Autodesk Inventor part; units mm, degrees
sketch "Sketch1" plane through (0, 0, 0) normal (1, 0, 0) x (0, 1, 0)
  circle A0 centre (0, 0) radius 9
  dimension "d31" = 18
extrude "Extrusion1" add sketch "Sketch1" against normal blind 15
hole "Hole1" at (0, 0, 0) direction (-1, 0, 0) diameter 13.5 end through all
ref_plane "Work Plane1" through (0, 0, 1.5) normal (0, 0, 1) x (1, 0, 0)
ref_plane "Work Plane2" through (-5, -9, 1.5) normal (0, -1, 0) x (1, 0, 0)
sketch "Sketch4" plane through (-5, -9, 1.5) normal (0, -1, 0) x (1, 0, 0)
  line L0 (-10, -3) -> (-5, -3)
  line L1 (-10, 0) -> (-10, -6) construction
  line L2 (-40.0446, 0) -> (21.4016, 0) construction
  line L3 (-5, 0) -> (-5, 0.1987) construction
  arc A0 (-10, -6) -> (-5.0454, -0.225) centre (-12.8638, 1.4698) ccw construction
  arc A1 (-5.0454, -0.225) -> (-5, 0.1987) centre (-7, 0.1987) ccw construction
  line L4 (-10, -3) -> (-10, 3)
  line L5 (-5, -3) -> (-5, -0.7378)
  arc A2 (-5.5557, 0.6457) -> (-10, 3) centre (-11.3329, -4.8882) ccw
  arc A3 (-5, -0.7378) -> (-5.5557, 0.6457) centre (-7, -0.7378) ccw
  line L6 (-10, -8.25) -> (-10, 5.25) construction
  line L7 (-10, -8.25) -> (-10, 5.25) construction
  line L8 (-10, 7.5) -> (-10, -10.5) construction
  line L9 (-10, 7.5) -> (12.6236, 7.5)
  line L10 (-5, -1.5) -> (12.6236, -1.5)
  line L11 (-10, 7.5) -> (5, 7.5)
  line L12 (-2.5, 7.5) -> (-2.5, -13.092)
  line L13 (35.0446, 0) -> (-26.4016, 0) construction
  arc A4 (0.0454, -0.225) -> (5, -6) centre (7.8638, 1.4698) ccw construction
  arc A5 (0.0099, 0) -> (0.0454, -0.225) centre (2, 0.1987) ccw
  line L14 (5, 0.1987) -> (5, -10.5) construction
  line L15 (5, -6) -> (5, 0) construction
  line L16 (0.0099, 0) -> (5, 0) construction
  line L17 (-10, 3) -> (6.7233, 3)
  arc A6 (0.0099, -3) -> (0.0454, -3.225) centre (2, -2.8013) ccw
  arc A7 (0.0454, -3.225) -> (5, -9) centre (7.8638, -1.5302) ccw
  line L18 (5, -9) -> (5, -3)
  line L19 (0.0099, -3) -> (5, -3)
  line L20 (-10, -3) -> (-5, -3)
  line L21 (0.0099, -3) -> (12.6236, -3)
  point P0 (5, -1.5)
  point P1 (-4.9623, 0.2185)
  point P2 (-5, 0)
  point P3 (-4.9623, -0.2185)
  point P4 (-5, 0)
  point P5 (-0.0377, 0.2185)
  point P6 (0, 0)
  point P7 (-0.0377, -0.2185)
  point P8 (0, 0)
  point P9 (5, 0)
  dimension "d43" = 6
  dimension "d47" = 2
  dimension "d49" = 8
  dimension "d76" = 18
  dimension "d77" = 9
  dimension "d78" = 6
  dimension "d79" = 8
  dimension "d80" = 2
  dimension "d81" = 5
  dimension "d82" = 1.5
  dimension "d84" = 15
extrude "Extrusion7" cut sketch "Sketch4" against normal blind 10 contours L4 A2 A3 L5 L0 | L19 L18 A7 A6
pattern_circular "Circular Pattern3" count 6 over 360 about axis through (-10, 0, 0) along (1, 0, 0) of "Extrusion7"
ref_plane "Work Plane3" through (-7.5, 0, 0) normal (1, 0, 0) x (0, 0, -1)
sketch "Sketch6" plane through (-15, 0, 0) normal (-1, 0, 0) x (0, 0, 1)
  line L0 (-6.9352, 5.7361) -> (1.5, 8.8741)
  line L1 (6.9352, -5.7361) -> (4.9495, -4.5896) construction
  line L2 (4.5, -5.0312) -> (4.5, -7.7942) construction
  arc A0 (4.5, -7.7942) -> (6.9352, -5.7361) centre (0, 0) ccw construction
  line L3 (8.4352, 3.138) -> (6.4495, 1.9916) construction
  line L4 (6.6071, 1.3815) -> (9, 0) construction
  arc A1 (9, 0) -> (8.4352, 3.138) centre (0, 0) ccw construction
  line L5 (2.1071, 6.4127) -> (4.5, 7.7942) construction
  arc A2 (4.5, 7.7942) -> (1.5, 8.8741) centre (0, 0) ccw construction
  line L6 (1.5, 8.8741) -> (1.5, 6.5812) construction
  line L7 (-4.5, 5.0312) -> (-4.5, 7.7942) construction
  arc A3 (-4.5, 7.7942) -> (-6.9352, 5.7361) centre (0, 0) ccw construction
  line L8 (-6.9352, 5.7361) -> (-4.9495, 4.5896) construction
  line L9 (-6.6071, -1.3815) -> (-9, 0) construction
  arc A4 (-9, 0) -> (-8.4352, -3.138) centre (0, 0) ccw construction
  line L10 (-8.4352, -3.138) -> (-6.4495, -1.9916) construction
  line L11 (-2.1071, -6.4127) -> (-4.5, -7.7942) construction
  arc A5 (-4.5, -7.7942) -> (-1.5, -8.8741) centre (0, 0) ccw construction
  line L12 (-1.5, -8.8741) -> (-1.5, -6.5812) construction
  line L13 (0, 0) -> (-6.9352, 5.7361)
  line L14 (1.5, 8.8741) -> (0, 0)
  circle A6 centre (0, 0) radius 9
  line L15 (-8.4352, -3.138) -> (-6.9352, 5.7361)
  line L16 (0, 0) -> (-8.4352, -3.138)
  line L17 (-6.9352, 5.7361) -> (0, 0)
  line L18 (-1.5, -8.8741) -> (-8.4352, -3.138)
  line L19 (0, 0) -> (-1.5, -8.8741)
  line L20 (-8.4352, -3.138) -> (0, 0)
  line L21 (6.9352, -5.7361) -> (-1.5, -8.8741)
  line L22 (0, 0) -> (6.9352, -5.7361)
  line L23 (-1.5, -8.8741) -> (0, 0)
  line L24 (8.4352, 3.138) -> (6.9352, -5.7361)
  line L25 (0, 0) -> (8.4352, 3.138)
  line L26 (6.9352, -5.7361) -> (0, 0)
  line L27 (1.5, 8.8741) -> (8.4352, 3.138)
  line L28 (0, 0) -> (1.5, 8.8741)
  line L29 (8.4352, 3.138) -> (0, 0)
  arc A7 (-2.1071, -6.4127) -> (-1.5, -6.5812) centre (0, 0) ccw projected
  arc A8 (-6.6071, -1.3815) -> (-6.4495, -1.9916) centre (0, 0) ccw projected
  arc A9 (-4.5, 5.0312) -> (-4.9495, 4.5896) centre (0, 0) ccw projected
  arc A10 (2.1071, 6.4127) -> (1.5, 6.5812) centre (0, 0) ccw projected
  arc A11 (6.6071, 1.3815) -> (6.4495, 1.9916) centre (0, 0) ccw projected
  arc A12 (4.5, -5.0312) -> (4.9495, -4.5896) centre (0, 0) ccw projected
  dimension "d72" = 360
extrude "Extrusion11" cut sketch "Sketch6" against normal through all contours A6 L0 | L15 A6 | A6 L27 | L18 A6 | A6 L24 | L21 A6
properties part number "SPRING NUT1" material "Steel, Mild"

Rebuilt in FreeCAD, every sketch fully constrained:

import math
import FreeCAD as App
import Part
import Sketcher
Q = App.Units.Quantity

doc = App.newDocument("Part")
params = doc.addObject("Spreadsheet::Sheet", "Params")
for row, (alias, value) in enumerate([
    ("sketch1_diameter", "18 mm"),
    ("pad1_length", "15 mm"),
    ("sketch2_diameter", "13.5 mm"),
    ("hole_diameter", "13.5 mm"),
    ("sketch3_radius", "2 mm"),
    ("sketch3_radius2", "8 mm"),
    ("sketch3_width", "5 mm"),
    ("sketch3_height", "6 mm"),
    ("sketch3_width2", "4.99 mm"),
    ("pocket1_length", "10 mm"),
    ("sketch4_radius", "9 mm"),
], start=1):
    params.set(f"A{row}", alias)
    params.set(f"B{row}", "=" + value)
    params.setAlias(f"B{row}", alias)

body = doc.addObject("PartDesign::Body", "Body")

sketch1 = body.newObject("Sketcher::SketchObject", "Sketch")
sketch1.AttachmentSupport = (doc.getObject("YZ_Plane"), [""])
sketch1.MapMode = "FlatFace"
sketch1.addGeometry(Part.Circle(App.Vector(0, 0, 0), App.Vector(0, 0, 1), 9), False)
sketch1.addConstraint([
    Sketcher.Constraint("Coincident", 0, 3, -1, 1),
    Sketcher.Constraint("Diameter", 0, Q("18 mm")),
])
sketch1.setExpression("Constraints[1]", "Params.sketch1_diameter")
pad1 = body.newObject("PartDesign::Pad", "Pad")
pad1.Profile = sketch1
pad1.setExpression("Length", "Params.pad1_length")
pad1.Reversed = True

sketch2 = body.newObject("Sketcher::SketchObject", "Sketch001")
sketch2.AttachmentSupport = (doc.getObject("YZ_Plane"), [""])
sketch2.MapMode = "FlatFace"
sketch2.addGeometry(Part.Circle(App.Vector(0, 0, 0), App.Vector(0, 0, 1), 7), False)
sketch2.addConstraint([
    Sketcher.Constraint("Coincident", 0, 3, -1, 1),
    Sketcher.Constraint("Diameter", 0, Q("13.5 mm")),
])
sketch2.setExpression("Constraints[1]", "Params.sketch2_diameter")
doc.recompute()
hole = body.newObject("PartDesign::Hole", "Hole")
hole.Profile = sketch2
hole.ThreadType = "None"
hole.setExpression("Diameter", "Params.hole_diameter")
hole.DepthType = "ThroughAll"

sketch3 = body.newObject("Sketcher::SketchObject", "Sketch002")
sketch3.AttachmentSupport = (doc.getObject("XZ_Plane"), [""])
sketch3.MapMode = "FlatFace"
sketch3.AttachmentOffset = App.Placement(App.Vector(0, 0, 9), App.Rotation())
sketch3.addGeometry([
    Part.LineSegment(App.Vector(-15, 4.5, 0), App.Vector(-15, -1.5, 0)),
    Part.LineSegment(App.Vector(-15, -1.5, 0), App.Vector(-10, -1.5, 0)),
    Part.LineSegment(App.Vector(-10, -1.5, 0), App.Vector(-10, 0.76, 0)),
    Part.ArcOfCircle(Part.Circle(App.Vector(-12, 0.76, 0), App.Vector(0, 0, 1), 2), math.radians(0), math.radians(44)),
    Part.ArcOfCircle(Part.Circle(App.Vector(-16.33, -3.39, 0), App.Vector(0, 0, 1), 8), math.radians(44), math.radians(80)),
    Part.LineSegment(App.Vector(0, -1.5, 0), App.Vector(-4.99, -1.5, 0)),
    Part.ArcOfCircle(Part.Circle(App.Vector(-3, -1.3, 0), App.Vector(0, 0, 1), 2), math.radians(-174.3), math.radians(-167.77)),
    Part.ArcOfCircle(Part.Circle(App.Vector(2.86, -0.03, 0), App.Vector(0, 0, 1), 8), math.radians(-168), math.radians(-111)),
    Part.LineSegment(App.Vector(0, -7.5, 0), App.Vector(0, -1.5, 0)),
], False)
sketch3.addConstraint([
    Sketcher.Constraint("Coincident", 0, 2, 1, 1),
    Sketcher.Constraint("Coincident", 1, 2, 2, 1),
    Sketcher.Constraint("Tangent", 2, 2, 3, 1),
    Sketcher.Constraint("Tangent", 3, 2, 4, 1),
    Sketcher.Constraint("Coincident", 4, 2, 0, 1),
    Sketcher.Constraint("Coincident", 5, 2, 6, 1),
    Sketcher.Constraint("Tangent", 6, 2, 7, 1),
    Sketcher.Constraint("Coincident", 7, 2, 8, 1),
    Sketcher.Constraint("Coincident", 8, 2, 5, 1),
    Sketcher.Constraint("Vertical", 0),
    Sketcher.Constraint("Horizontal", 1),
    Sketcher.Constraint("Vertical", 2),
    Sketcher.Constraint("Horizontal", 5),
    Sketcher.Constraint("Vertical", 8),
    Sketcher.Constraint("Equal", 3, 6),
    Sketcher.Constraint("Equal", 4, 7),
    Sketcher.Constraint("PointOnObject", 7, 2, -2),
    Sketcher.Constraint("Horizontal", 1, 2, 5, 2),
    Sketcher.Constraint("Equal", 0, 8),
    Sketcher.Constraint("Radius", 3, Q("2 mm")),
    Sketcher.Constraint("Radius", 4, Q("8 mm")),
    Sketcher.Constraint("DistanceX", 1, 1, 1, 2, Q("5 mm")),
    Sketcher.Constraint("DistanceY", 0, 2, 0, 1, Q("6 mm")),
    Sketcher.Constraint("DistanceX", 0, 2, -1, 1, Q("15 mm")),
    Sketcher.Constraint("DistanceX", 3, 3, 6, 3, Q("9 mm")),
    Sketcher.Constraint("DistanceY", 0, 2, -1, 1, Q("1.5 mm")),
    Sketcher.Constraint("DistanceX", 5, 2, 5, 1, Q("4.99 mm")),
    Sketcher.Constraint("DistanceY", 2, 1, 2, 2, Q("2.2622 mm")),
])
sketch3.setExpression("Constraints[19]", "Params.sketch3_radius")
sketch3.setExpression("Constraints[20]", "Params.sketch3_radius2")
sketch3.setExpression("Constraints[21]", "Params.sketch3_width")
sketch3.setExpression("Constraints[22]", "Params.sketch3_height")
sketch3.setExpression("Constraints[26]", "Params.sketch3_width2")
pocket1 = body.newObject("PartDesign::Pocket", "Pocket")
pocket1.Profile = sketch3
pocket1.setExpression("Length", "Params.pocket1_length")
doc.recompute()

polarpattern = body.newObject("PartDesign::PolarPattern", "PolarPattern")
polarpattern.Originals = [pocket1]
polarpattern.Axis = (doc.getObject("X_Axis"), [""])
polarpattern.Angle = 360
polarpattern.Occurrences = 6
body.Tip = polarpattern

sketch4 = body.newObject("Sketcher::SketchObject", "Sketch003")
sketch4.AttachmentSupport = (doc.getObject("YZ_Plane"), [""])
sketch4.MapMode = "FlatFace"
sketch4.AttachmentOffset = App.Placement(App.Vector(0, 0, -15), App.Rotation())
sketch4.addGeometry([
    Part.ArcOfCircle(Part.Circle(App.Vector(0, 0, 0), App.Vector(0, 0, 1), 9), math.radians(-50), math.radians(10)),
    Part.LineSegment(App.Vector(9, 2, 0), App.Vector(6, -7, 0)),
    Part.LineSegment(App.Vector(-3, -8, 0), App.Vector(6, -7, 0)),
    Part.ArcOfCircle(Part.Circle(App.Vector(0, 0, 0), App.Vector(0, 0, 1), 9), math.radians(-110), math.radians(-50)),
    Part.ArcOfCircle(Part.Circle(App.Vector(0, 0, 0), App.Vector(0, 0, 1), 9), math.radians(10), math.radians(70)),
    Part.LineSegment(App.Vector(3, 8, 0), App.Vector(9, 2, 0)),
    Part.LineSegment(App.Vector(-9, -2, 0), App.Vector(-3, -8, 0)),
    Part.ArcOfCircle(Part.Circle(App.Vector(0, 0, 0), App.Vector(0, 0, 1), 9), math.radians(-170), math.radians(-110)),
    Part.ArcOfCircle(Part.Circle(App.Vector(0, 0, 0), App.Vector(0, 0, 1), 9), math.radians(70), math.radians(130)),
    Part.LineSegment(App.Vector(-6, 7, 0), App.Vector(3, 8, 0)),
    Part.LineSegment(App.Vector(-6, 7, 0), App.Vector(-9, -2, 0)),
    Part.ArcOfCircle(Part.Circle(App.Vector(0, 0, 0), App.Vector(0, 0, 1), 9), math.radians(130), math.radians(190)),
], False)
sketch4.addConstraint([
    Sketcher.Constraint("Coincident", 0, 1, 1, 2),
    Sketcher.Constraint("Coincident", 1, 1, 0, 2),
    Sketcher.Constraint("Coincident", 2, 1, 3, 1),
    Sketcher.Constraint("Coincident", 3, 2, 2, 2),
    Sketcher.Constraint("Coincident", 4, 1, 5, 2),
    Sketcher.Constraint("Coincident", 5, 1, 4, 2),
    Sketcher.Constraint("Coincident", 6, 1, 7, 1),
    Sketcher.Constraint("Coincident", 7, 2, 6, 2),
    Sketcher.Constraint("Coincident", 8, 1, 9, 2),
    Sketcher.Constraint("Coincident", 9, 1, 8, 2),
    Sketcher.Constraint("Coincident", 10, 1, 11, 1),
    Sketcher.Constraint("Coincident", 11, 2, 10, 2),
    Sketcher.Constraint("Coincident", 0, 3, -1, 1),
    Sketcher.Constraint("Coincident", 3, 3, -1, 1),
    Sketcher.Constraint("Coincident", 4, 3, -1, 1),
    Sketcher.Constraint("Coincident", 7, 3, -1, 1),
    Sketcher.Constraint("Coincident", 8, 3, -1, 1),
    Sketcher.Constraint("Coincident", 11, 3, -1, 1),
    Sketcher.Constraint("Coincident", 3, 2, 0, 1),
    Sketcher.Constraint("Coincident", 4, 1, 1, 1),
    Sketcher.Constraint("Coincident", 7, 2, 2, 1),
    Sketcher.Constraint("Coincident", 8, 1, 5, 1),
    Sketcher.Constraint("Coincident", 10, 1, 9, 1),
    Sketcher.Constraint("Parallel", 5, 6),
    Sketcher.Constraint("Parallel", 2, 9),
    Sketcher.Constraint("Parallel", 1, 10),
    Sketcher.Constraint("Equal", 1, 2),
    Sketcher.Constraint("Equal", 2, 5),
    Sketcher.Constraint("Equal", 5, 6),
    Sketcher.Constraint("Radius", 0, Q("9 mm")),
    Sketcher.Constraint("DistanceY", -1, 1, 1, 1, Q("1.5 mm")),
])
sketch4.setExpression("Constraints[29]", "Params.sketch4_radius")
pocket2 = body.newObject("PartDesign::Pocket", "Pocket001")
pocket2.Profile = sketch4
pocket2.Type = "ThroughAll"
pocket2.Reversed = True

doc.recompute()
